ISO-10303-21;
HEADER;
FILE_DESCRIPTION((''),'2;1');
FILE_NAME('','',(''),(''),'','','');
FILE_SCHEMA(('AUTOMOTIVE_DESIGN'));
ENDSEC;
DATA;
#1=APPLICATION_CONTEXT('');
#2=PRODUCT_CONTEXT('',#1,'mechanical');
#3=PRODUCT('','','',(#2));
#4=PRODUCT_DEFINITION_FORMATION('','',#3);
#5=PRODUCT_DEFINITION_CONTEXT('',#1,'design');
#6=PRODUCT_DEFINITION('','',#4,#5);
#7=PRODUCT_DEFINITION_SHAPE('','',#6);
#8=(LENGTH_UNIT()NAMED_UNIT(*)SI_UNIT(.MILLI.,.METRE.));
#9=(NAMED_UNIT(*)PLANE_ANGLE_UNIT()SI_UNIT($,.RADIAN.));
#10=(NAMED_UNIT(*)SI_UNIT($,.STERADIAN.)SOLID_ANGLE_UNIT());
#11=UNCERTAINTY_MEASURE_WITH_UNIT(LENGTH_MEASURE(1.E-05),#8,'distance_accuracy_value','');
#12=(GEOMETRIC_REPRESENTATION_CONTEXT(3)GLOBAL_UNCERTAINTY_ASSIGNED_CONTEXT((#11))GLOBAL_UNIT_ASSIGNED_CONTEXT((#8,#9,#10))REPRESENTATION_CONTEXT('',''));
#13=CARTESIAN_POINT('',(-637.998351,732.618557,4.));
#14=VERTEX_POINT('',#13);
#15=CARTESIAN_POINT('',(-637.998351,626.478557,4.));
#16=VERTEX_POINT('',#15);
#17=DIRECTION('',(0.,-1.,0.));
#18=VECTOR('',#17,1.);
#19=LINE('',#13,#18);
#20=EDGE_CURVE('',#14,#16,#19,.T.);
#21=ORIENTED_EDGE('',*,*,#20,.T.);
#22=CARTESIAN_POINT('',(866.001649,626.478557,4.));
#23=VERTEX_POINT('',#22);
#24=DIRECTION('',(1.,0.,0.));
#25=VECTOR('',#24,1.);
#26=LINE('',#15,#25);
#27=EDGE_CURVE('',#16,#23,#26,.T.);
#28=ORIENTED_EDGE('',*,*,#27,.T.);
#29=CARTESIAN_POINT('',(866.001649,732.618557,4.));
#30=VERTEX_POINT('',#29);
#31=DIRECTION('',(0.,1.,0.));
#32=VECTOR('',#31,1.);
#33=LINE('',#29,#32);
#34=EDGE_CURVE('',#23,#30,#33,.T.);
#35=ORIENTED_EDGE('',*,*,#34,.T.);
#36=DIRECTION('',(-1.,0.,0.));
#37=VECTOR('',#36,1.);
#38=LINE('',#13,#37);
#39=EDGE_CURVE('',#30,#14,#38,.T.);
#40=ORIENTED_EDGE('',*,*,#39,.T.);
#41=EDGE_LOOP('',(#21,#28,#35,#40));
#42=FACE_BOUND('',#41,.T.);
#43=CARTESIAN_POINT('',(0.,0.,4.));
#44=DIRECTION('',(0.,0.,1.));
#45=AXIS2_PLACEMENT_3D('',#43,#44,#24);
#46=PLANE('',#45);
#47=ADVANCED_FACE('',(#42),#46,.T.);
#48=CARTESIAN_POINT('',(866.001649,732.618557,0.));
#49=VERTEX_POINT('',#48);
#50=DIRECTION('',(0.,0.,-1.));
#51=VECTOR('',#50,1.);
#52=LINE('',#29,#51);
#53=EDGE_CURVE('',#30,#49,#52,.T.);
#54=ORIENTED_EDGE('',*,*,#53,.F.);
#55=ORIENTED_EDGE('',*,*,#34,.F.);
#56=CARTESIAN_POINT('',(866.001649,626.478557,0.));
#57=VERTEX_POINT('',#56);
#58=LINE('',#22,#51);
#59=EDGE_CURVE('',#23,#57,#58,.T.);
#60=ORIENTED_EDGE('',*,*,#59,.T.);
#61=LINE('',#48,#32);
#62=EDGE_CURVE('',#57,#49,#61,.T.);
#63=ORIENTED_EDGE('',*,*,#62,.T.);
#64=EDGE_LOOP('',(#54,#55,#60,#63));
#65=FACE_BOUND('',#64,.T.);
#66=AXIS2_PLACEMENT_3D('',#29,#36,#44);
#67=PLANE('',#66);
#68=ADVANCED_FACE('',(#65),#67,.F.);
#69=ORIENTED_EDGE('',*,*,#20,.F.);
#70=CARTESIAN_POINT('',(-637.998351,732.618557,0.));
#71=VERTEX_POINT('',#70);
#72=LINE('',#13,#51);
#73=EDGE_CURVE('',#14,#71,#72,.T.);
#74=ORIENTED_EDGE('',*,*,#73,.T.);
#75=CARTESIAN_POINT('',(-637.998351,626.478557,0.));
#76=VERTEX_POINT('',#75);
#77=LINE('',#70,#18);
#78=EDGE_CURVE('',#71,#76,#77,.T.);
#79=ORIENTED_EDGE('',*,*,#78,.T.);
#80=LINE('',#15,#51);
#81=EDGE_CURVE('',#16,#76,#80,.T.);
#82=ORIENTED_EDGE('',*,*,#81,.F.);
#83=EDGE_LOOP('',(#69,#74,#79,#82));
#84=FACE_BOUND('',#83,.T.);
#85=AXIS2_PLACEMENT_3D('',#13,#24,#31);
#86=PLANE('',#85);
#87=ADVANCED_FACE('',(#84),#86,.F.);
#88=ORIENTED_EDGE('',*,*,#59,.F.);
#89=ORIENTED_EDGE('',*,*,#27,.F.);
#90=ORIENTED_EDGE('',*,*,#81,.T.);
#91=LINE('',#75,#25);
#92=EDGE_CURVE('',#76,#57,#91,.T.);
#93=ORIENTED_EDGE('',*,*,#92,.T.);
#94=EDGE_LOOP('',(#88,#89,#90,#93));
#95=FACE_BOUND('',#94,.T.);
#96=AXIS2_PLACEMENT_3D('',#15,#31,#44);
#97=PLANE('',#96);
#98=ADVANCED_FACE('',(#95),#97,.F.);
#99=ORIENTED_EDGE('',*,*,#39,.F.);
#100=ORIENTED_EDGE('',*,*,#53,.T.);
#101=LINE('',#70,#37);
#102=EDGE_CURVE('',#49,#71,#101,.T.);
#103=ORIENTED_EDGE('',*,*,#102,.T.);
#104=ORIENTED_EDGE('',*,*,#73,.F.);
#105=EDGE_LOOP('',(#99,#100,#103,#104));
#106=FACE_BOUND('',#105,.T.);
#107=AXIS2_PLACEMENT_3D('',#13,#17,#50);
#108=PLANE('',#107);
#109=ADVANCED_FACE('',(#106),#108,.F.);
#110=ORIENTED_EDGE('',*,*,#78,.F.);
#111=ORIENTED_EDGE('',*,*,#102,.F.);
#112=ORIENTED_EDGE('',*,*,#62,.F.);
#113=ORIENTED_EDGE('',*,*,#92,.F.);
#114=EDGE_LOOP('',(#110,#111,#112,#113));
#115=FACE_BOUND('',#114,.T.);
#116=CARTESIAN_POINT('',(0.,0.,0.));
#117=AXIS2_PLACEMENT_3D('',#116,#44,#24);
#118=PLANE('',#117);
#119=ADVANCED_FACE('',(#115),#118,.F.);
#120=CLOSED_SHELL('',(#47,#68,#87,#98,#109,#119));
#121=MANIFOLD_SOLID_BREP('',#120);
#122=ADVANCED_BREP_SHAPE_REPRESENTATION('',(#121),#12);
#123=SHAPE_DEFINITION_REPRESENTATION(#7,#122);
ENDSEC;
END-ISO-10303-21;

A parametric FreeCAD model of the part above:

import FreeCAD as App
import Part
import Sketcher

V = App.Vector


def add_polygon(sketch, points):
    """Adds a closed chain of lines whose ends are joined by coincident constraints."""
    first, n = sketch.GeometryCount, len(points)
    for a, b in zip(points, points[1:] + points[:1]):
        sketch.addGeometry(Part.LineSegment(App.Vector(*a, 0), App.Vector(*b, 0)), False)
    for i in range(n):
        sketch.addConstraint(Sketcher.Constraint("Coincident", first + i, 2, first + (i + 1) % n, 1))

doc = App.newDocument("Part")
body = doc.addObject("PartDesign::Body", "Body")

# Sketch on XY plane
sketch1 = body.newObject("Sketcher::SketchObject", "Sketch")
sketch1.AttachmentSupport = (doc.getObject("XY_Plane"), [""])
sketch1.MapMode = "FlatFace"
add_polygon(sketch1, [(-637.998351, 732.618557), (-637.998351, 626.478557), (866.001649, 626.478557), (866.001649, 732.618557)])  # lines 0-3
sketch1.addConstraint([
    Sketcher.Constraint("Vertical", 0),
    Sketcher.Constraint("Horizontal", 1),
    Sketcher.Constraint("Vertical", 2),
    Sketcher.Constraint("Horizontal", 3),
    Sketcher.Constraint("DistanceX", 1, 1, 1, 2, 1504.0),
    Sketcher.Constraint("DistanceY", 0, 2, 0, 1, 106.14),
    Sketcher.Constraint("DistanceX", 0, 2, -1, 1, 637.998351),
    Sketcher.Constraint("DistanceY", -1, 1, 0, 2, 626.478557),
])
pad1 = body.newObject("PartDesign::Pad", "Pad")
pad1.Profile = sketch1
pad1.Length = 4

doc.recompute()
